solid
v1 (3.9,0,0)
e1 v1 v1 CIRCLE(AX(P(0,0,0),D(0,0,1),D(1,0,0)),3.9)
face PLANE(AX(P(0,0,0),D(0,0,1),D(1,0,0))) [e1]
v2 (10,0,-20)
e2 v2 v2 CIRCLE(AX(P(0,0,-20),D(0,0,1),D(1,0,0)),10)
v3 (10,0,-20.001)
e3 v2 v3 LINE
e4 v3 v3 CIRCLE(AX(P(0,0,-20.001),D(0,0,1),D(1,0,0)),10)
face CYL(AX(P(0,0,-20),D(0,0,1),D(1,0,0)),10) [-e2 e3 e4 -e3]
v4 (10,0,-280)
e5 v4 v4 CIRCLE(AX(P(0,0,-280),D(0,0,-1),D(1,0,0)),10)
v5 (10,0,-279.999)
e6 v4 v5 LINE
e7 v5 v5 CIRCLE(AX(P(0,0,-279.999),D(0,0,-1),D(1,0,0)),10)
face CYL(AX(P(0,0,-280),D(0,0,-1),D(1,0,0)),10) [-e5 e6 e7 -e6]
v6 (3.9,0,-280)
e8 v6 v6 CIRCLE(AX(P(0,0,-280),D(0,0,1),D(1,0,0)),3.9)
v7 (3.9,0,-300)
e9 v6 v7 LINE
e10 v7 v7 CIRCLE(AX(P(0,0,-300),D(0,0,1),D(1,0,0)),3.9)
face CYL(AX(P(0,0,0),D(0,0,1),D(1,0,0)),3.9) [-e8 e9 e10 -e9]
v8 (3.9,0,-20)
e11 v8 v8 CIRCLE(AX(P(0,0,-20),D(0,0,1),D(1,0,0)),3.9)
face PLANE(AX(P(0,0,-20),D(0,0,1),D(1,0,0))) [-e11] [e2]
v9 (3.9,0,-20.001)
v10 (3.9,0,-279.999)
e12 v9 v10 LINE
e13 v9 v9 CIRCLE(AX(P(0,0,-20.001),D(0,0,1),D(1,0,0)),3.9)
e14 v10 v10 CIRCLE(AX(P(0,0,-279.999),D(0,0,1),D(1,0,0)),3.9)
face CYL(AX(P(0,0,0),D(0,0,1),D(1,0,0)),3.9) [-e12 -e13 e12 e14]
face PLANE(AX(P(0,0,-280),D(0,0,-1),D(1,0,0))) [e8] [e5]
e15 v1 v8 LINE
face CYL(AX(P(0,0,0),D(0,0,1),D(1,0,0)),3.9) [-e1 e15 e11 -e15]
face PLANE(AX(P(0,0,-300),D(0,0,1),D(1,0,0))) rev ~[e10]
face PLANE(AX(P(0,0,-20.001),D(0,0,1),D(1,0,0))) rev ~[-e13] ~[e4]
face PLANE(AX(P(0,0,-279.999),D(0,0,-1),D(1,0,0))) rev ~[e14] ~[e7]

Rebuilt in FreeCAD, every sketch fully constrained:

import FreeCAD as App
import Part
import Sketcher
from FreeCAD import Vector

doc = App.newDocument("Part")
body = doc.addObject("PartDesign::Body", "Body")

sketch1 = doc.addObject("Sketcher::SketchObject", "Sketch")
body.addObject(sketch1)
sketch1.AttachmentSupport = (doc.XY_Plane, [""])
sketch1.MapMode = "FlatFace"
sketch1.addGeometry(Part.Circle(Vector(0, 0, 0), Vector(0, 0, 1), 3.9), False)
sketch1.addConstraint([
    Sketcher.Constraint("Coincident", 0, 3, -1, 1),
    Sketcher.Constraint("Diameter", 0, 7.8),
])
pad1 = doc.addObject("PartDesign::Pad", "Pad")
body.addObject(pad1)
pad1.Profile = sketch1
pad1.Length = 300
pad1.Reversed = True

sketch2 = doc.addObject("Sketcher::SketchObject", "Sketch001")
body.addObject(sketch2)
sketch2.AttachmentSupport = (doc.XY_Plane, [""])
sketch2.MapMode = "FlatFace"
sketch2.AttachmentOffset = App.Placement(Vector(0, 0, -280), App.Rotation())
sketch2.addGeometry(Part.Circle(Vector(0, 0, 0), Vector(0, 0, 1), 10), False)
sketch2.addConstraint([
    Sketcher.Constraint("Coincident", 0, 3, -1, 1),
    Sketcher.Constraint("Diameter", 0, 20.0),
])
pad2 = doc.addObject("PartDesign::Pad", "Pad001")
body.addObject(pad2)
pad2.Profile = sketch2
pad2.Length = 0.001

sketch3 = doc.addObject("Sketcher::SketchObject", "Sketch002")
body.addObject(sketch3)
sketch3.AttachmentSupport = (doc.XY_Plane, [""])
sketch3.MapMode = "FlatFace"
sketch3.AttachmentOffset = App.Placement(Vector(0, 0, -20), App.Rotation())
sketch3.addGeometry(Part.Circle(Vector(0, 0, 0), Vector(0, 0, 1), 10), False)
sketch3.addConstraint([
    Sketcher.Constraint("Coincident", 0, 3, -1, 1),
    Sketcher.Constraint("Diameter", 0, 20.0),
])
pad3 = doc.addObject("PartDesign::Pad", "Pad002")
body.addObject(pad3)
pad3.Profile = sketch3
pad3.Length = 0.001
pad3.Reversed = True

doc.recompute()
